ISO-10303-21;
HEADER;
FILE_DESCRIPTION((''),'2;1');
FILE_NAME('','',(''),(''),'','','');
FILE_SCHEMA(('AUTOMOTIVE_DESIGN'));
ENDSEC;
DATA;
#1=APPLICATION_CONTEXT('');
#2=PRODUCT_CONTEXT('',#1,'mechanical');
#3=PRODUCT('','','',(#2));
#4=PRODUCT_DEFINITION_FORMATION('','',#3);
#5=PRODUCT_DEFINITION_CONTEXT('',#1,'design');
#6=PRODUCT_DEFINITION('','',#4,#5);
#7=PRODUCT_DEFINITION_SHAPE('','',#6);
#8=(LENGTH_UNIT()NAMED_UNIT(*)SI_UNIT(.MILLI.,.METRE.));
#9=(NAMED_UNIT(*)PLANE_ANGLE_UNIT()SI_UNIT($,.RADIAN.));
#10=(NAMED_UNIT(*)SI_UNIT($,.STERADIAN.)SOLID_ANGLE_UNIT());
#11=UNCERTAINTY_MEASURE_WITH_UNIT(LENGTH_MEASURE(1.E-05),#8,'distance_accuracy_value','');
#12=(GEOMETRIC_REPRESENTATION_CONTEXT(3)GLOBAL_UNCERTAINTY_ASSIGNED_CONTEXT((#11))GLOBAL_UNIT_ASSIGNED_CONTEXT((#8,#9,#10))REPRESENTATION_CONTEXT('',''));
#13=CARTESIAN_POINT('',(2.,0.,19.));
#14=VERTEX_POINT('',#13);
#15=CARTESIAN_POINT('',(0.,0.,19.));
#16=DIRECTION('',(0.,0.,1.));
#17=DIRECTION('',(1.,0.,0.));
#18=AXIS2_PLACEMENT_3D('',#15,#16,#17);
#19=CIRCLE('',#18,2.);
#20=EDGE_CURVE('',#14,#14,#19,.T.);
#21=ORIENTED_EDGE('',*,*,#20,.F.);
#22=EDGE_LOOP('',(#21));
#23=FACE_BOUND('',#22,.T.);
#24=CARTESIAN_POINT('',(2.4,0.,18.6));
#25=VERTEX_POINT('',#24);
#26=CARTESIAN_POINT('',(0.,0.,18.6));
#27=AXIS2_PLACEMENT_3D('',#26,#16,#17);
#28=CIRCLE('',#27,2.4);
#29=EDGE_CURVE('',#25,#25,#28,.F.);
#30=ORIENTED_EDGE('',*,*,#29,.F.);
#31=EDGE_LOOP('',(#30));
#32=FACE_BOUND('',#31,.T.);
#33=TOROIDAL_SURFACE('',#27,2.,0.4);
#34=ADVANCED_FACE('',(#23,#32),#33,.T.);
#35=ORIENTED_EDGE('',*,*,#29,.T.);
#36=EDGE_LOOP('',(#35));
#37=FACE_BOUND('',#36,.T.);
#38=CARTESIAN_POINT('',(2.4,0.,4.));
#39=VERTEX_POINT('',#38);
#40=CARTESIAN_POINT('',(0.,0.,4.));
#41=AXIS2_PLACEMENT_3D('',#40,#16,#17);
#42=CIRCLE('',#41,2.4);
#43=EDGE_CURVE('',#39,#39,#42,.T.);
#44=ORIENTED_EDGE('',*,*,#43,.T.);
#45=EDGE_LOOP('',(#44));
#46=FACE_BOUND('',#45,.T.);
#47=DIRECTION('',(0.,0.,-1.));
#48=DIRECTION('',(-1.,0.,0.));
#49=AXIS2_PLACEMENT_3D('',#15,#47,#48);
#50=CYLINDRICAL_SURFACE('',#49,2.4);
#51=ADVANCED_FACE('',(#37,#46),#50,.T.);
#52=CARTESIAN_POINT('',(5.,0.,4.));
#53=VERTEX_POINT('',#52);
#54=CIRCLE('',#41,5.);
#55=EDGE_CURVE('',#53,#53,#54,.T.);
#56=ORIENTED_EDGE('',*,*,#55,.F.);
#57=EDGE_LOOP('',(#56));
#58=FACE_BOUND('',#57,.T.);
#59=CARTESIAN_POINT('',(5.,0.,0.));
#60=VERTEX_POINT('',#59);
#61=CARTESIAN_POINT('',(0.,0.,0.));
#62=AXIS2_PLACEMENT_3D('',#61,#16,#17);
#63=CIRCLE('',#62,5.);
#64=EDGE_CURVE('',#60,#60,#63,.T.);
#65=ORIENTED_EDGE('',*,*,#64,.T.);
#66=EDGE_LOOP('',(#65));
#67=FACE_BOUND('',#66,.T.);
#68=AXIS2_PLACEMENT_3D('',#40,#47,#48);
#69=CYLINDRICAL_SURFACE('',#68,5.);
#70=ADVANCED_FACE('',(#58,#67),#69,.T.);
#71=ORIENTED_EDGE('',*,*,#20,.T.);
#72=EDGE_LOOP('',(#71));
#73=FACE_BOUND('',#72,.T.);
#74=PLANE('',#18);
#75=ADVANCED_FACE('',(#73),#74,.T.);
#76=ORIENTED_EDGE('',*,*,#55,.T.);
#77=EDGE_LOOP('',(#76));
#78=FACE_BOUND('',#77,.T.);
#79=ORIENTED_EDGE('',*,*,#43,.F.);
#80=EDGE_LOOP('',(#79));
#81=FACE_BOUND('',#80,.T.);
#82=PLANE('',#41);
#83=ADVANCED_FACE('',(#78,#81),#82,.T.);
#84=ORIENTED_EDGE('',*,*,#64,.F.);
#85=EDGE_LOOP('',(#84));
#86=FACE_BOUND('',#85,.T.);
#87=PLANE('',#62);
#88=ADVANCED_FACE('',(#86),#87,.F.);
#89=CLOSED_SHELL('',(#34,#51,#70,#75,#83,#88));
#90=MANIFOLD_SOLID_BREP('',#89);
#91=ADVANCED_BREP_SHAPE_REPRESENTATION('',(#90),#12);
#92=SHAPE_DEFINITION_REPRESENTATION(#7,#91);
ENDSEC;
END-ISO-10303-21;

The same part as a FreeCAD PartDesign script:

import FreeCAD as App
import Part
import Sketcher

V = App.Vector
Q = App.Units.Quantity


def edges_at(feature, points):
    """Names of the edges that pass closest to the given points."""
    edges = feature.Shape.Edges
    near = lambda p: min(range(len(edges)), key=lambda i: edges[i].distToShape(Part.Vertex(*p))[0])
    return sorted({f"Edge{near(p) + 1}" for p in points})

doc = App.newDocument("Part")
params = doc.addObject("Spreadsheet::Sheet", "Params")
for row, (alias, value) in enumerate([
    ("sketch1_diameter", "10 mm"),
    ("pad1_length", "4 mm"),
    ("sketch2_diameter", "4.8 mm"),
    ("pad2_length", "15 mm"),
    ("fillet_radius", "0.4 mm"),
], start=1):
    params.set(f"A{row}", alias)
    params.set(f"B{row}", "=" + value)
    params.setAlias(f"B{row}", alias)

body = doc.addObject("PartDesign::Body", "Body")

sketch1 = body.newObject("Sketcher::SketchObject", "Sketch")
sketch1.AttachmentSupport = (doc.getObject("XY_Plane"), [""])
sketch1.MapMode = "FlatFace"
sketch1.addGeometry(Part.Circle(V(0, 0, 0), V(0, 0, 1), 5), False)
sketch1.addConstraint(Sketcher.Constraint("Coincident", 0, 3, -1, 1))
sketch1.addConstraint(Sketcher.Constraint("Diameter", 0, Q("10 mm")))
sketch1.setExpression("Constraints[1]", "Params.sketch1_diameter")
pad1 = body.newObject("PartDesign::Pad", "Pad")
pad1.Profile = sketch1
pad1.setExpression("Length", "Params.pad1_length")

sketch2 = body.newObject("Sketcher::SketchObject", "Sketch001")
sketch2.AttachmentSupport = (doc.getObject("XY_Plane"), [""])
sketch2.MapMode = "FlatFace"
sketch2.AttachmentOffset = App.Placement(V(0, 0, 4), App.Rotation())
sketch2.addGeometry(Part.Circle(V(0, 0, 0), V(0, 0, 1), 2.4), False)
sketch2.addConstraint(Sketcher.Constraint("Coincident", 0, 3, -1, 1))
sketch2.addConstraint(Sketcher.Constraint("Diameter", 0, Q("4.8 mm")))
sketch2.setExpression("Constraints[1]", "Params.sketch2_diameter")
pad2 = body.newObject("PartDesign::Pad", "Pad001")
pad2.Profile = sketch2
pad2.setExpression("Length", "Params.pad2_length")
doc.recompute()

fillet = body.newObject("PartDesign::Fillet", "Fillet")
fillet.Base = (pad2, edges_at(pad2, [(-2.4, 0, 19)]))
fillet.setExpression("Radius", "Params.fillet_radius")

doc.recompute()
